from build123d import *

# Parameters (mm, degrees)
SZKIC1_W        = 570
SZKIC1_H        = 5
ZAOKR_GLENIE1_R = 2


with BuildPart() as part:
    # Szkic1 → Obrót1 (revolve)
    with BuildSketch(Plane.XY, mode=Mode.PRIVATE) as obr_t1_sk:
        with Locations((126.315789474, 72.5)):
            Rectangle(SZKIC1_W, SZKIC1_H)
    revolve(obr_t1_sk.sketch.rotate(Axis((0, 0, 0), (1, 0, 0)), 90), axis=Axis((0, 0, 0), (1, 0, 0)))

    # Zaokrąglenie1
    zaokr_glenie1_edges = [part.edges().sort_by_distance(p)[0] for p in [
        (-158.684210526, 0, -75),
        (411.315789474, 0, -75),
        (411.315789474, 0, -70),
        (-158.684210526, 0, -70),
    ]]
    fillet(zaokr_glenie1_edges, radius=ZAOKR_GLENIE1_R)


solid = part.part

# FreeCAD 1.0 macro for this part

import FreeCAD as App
import Part
import Sketcher
from FreeCAD import Vector


def edges_at(feature, points):
    """Names of the edges that pass closest to the given points."""
    edges = feature.Shape.Edges
    near = lambda p: min(range(len(edges)), key=lambda i: edges[i].distToShape(Part.Vertex(*p))[0])
    return sorted({f"Edge{near(p) + 1}" for p in points})


def add_polygon(sketch, points):
    """Adds a closed chain of lines whose ends are joined by coincident constraints."""
    first, n = sketch.GeometryCount, len(points)
    for a, b in zip(points, points[1:] + points[:1]):
        sketch.addGeometry(Part.LineSegment(App.Vector(*a, 0), App.Vector(*b, 0)), False)
    for i in range(n):
        sketch.addConstraint(Sketcher.Constraint("Coincident", first + i, 2, first + (i + 1) % n, 1))

doc = App.newDocument("Part")
body = doc.addObject("PartDesign::Body", "Body")

# Sketch on XY plane
sketch1 = body.newObject("Sketcher::SketchObject", "Sketch")
sketch1.AttachmentSupport = (doc.getObject("XY_Plane"), [""])
sketch1.MapMode = "FlatFace"
add_polygon(sketch1, [(-159, 75), (-159, 70), (411, 70), (411, 75)])  # lines 0-3
sketch1.addConstraint([
    Sketcher.Constraint("Vertical", 0),
    Sketcher.Constraint("Horizontal", 1),
    Sketcher.Constraint("Vertical", 2),
    Sketcher.Constraint("Horizontal", 3),
    Sketcher.Constraint("DistanceX", 1, 1, 1, 2, 570.0),
    Sketcher.Constraint("DistanceY", 0, 2, 0, 1, 5.0),
    Sketcher.Constraint("DistanceY", -1, 1, 0, 2, 70.0),
    Sketcher.Constraint("DistanceX", 0, 2, -1, 1, 158.684211),
])
revolution = body.newObject("PartDesign::Revolution", "Revolution")
revolution.Profile = sketch1
revolution.ReferenceAxis = (sketch1, ["H_Axis"])
revolution.Angle = 360
doc.recompute()

fillet = body.newObject("PartDesign::Fillet", "Fillet")
fillet.Base = (revolution, edges_at(revolution, [
    (-158.684, 0, -75),
    (411.316, 0, -75),
    (411.316, 0, -70),
    (-158.684, 0, -70),
]))
fillet.Radius = 2

doc.recompute()
